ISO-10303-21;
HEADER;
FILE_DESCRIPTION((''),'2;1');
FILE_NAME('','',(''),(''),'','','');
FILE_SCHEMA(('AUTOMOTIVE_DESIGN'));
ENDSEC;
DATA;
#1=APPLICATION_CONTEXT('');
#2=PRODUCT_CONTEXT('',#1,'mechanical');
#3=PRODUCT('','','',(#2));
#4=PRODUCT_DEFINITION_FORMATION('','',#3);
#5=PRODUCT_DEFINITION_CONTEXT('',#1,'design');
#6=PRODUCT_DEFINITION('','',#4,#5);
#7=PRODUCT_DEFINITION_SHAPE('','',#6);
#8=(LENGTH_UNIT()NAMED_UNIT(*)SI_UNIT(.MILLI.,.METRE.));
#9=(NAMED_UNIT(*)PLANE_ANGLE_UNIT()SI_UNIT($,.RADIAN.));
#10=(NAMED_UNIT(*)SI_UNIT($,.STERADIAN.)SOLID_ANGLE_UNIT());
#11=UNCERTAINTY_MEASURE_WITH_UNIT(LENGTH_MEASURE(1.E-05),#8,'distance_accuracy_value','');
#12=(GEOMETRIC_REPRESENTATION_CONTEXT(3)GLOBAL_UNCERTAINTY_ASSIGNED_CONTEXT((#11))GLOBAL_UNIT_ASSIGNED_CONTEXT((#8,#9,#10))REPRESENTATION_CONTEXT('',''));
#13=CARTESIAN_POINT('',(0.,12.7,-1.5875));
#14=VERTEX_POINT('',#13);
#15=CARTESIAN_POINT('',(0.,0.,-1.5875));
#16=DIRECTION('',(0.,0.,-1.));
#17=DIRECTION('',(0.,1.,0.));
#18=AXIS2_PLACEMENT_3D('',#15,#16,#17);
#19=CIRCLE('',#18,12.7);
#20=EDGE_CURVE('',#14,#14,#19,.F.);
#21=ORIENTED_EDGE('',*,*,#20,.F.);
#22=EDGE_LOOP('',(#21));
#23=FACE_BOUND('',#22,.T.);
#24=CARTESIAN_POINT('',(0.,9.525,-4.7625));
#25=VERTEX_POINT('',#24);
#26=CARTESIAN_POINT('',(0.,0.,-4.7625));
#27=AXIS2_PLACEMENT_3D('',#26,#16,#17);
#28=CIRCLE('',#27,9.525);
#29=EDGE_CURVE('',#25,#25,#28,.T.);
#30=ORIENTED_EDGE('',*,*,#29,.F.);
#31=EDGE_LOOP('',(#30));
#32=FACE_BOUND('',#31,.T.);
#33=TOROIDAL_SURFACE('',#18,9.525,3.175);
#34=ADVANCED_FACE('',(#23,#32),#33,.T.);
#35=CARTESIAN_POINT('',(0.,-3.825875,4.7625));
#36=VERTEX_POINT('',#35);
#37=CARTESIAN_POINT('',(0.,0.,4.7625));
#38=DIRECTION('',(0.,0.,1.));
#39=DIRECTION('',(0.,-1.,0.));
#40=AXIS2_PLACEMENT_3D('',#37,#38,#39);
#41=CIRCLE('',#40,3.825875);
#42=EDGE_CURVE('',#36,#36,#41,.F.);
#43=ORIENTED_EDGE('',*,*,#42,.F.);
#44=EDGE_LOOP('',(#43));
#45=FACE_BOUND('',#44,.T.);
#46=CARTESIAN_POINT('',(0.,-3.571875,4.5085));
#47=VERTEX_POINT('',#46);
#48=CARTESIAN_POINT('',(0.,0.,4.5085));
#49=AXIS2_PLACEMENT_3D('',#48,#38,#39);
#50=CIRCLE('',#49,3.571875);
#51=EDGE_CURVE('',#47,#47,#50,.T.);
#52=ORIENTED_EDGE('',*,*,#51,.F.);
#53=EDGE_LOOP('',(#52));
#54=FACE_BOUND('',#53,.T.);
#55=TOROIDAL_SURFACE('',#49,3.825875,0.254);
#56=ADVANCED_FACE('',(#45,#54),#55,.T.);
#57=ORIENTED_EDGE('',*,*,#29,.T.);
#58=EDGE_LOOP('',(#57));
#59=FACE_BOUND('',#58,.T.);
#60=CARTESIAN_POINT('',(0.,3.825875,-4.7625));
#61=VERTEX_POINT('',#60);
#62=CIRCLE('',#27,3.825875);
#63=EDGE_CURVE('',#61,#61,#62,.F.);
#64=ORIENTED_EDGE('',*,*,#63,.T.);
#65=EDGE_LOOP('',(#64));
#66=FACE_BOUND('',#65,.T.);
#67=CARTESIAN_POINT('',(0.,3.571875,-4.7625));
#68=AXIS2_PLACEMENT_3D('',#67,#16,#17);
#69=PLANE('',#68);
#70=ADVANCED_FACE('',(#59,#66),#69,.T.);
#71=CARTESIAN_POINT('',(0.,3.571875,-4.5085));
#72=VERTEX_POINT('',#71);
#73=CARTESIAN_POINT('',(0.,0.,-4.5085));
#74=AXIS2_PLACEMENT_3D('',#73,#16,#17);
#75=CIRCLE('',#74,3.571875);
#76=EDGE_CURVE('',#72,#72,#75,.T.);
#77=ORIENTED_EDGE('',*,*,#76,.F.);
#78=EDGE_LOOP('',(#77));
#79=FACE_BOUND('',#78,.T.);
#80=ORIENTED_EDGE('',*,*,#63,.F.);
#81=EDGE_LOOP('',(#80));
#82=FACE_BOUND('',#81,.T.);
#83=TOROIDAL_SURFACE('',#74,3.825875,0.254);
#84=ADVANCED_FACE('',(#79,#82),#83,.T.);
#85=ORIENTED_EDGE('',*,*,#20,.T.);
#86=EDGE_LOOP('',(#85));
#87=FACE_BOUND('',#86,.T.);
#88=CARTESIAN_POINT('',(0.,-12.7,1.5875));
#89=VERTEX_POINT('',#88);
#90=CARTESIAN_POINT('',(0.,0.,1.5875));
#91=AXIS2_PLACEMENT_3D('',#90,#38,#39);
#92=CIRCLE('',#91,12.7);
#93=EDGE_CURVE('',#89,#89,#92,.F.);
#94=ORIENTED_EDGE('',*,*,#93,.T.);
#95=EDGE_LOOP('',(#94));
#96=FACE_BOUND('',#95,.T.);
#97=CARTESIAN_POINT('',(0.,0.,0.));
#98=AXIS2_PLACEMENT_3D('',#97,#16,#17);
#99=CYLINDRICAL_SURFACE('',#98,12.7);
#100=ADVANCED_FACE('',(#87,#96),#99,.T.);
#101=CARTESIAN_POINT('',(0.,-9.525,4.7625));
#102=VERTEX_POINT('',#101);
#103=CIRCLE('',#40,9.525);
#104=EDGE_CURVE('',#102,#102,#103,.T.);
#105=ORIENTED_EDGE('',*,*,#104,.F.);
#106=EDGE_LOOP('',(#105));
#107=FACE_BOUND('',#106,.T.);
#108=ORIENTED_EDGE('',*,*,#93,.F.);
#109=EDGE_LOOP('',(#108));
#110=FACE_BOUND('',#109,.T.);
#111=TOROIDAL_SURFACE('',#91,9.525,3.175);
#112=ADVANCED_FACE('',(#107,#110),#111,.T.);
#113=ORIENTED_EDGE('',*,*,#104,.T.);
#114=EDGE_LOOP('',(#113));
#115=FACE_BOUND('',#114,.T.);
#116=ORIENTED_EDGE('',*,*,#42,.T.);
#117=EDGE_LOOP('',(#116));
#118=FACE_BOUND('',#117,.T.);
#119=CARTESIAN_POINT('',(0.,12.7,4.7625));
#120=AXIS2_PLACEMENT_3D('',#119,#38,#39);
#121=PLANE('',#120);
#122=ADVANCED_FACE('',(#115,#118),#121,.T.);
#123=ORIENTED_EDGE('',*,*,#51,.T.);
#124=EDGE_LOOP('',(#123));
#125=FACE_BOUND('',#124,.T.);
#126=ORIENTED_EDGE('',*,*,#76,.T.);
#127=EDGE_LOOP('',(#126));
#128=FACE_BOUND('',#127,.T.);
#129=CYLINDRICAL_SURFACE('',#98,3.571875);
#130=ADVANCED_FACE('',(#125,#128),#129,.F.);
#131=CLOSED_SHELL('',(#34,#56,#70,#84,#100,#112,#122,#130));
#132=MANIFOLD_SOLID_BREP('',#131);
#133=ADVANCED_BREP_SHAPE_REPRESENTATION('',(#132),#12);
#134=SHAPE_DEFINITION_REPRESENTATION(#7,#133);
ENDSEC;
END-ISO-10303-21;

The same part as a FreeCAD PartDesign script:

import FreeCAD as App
import Part
import Sketcher

V = App.Vector
Q = App.Units.Quantity


def edges_at(feature, points):
    """Names of the edges that pass closest to the given points."""
    edges = feature.Shape.Edges
    near = lambda p: min(range(len(edges)), key=lambda i: edges[i].distToShape(Part.Vertex(*p))[0])
    return sorted({f"Edge{near(p) + 1}" for p in points})

doc = App.newDocument("Part")
params = doc.addObject("Spreadsheet::Sheet", "Params")
for row, (alias, value) in enumerate([
    ("sketch1_width", "0.359375 in"),
    ("sketch1_height", "0.375 in"),
    ("revolution_angle", "360 deg"),
    ("fillet_radius", "0.125 in"),
    ("fillet2_radius", "0.01 in"),
], start=1):
    params.set(f"A{row}", alias)
    params.set(f"B{row}", "=" + value)
    params.setAlias(f"B{row}", alias)

body = doc.addObject("PartDesign::Body", "Body")

sketch1 = doc.addObject("Sketcher::SketchObject", "Sketch")
body.addObject(sketch1)
sketch1.AttachmentSupport = (doc.YZ_Plane, [""])
sketch1.MapMode = "FlatFace"
sketch1.addGeometry(Part.LineSegment(V(13, 5, 0), V(4, 5, 0)), False)
sketch1.addGeometry(Part.LineSegment(V(4, 5, 0), V(4, -5, 0)), False)
sketch1.addGeometry(Part.LineSegment(V(4, -5, 0), V(13, -5, 0)), False)
sketch1.addGeometry(Part.LineSegment(V(13, -5, 0), V(13, 5, 0)), False)
sketch1.addConstraint(Sketcher.Constraint("Coincident", 0, 2, 1, 1))
sketch1.addConstraint(Sketcher.Constraint("Coincident", 1, 2, 2, 1))
sketch1.addConstraint(Sketcher.Constraint("Coincident", 2, 2, 3, 1))
sketch1.addConstraint(Sketcher.Constraint("Coincident", 3, 2, 0, 1))
sketch1.addConstraint(Sketcher.Constraint("Horizontal", 0))
sketch1.addConstraint(Sketcher.Constraint("Vertical", 1))
sketch1.addConstraint(Sketcher.Constraint("Horizontal", 2))
sketch1.addConstraint(Sketcher.Constraint("Vertical", 3))
sketch1.addConstraint(Sketcher.Constraint("DistanceX", -1, 1, 2, 2, Q("0.5 in")))
sketch1.addConstraint(Sketcher.Constraint("DistanceX", 0, 2, 0, 1, Q("0.359375 in")))
sketch1.addConstraint(Sketcher.Constraint("DistanceY", 1, 2, 1, 1, Q("0.375 in")))
sketch1.addConstraint(Sketcher.Constraint("DistanceY", -1, 1, 0, 2, Q("0.1875 in")))
sketch1.setExpression("Constraints[9]", "Params.sketch1_width")
sketch1.setExpression("Constraints[10]", "Params.sketch1_height")
revolution = doc.addObject("PartDesign::Revolution", "Revolution")
body.addObject(revolution)
revolution.Profile = sketch1
revolution.ReferenceAxis = (sketch1, ["V_Axis"])
revolution.setExpression("Angle", "Params.revolution_angle")
doc.recompute()

fillet = doc.addObject("PartDesign::Fillet", "Fillet")
body.addObject(fillet)
fillet.Base = (revolution, edges_at(revolution, [(0, -12.7, 4.763), (0, -12.7, -4.763)]))
fillet.setExpression("Radius", "Params.fillet_radius")
doc.recompute()

fillet2 = doc.addObject("PartDesign::Fillet", "Fillet001")
body.addObject(fillet2)
fillet2.Base = (fillet, edges_at(fillet, [(0, -3.572, -4.763), (0, -3.572, 4.763)]))
fillet2.setExpression("Radius", "Params.fillet2_radius")

doc.recompute()
